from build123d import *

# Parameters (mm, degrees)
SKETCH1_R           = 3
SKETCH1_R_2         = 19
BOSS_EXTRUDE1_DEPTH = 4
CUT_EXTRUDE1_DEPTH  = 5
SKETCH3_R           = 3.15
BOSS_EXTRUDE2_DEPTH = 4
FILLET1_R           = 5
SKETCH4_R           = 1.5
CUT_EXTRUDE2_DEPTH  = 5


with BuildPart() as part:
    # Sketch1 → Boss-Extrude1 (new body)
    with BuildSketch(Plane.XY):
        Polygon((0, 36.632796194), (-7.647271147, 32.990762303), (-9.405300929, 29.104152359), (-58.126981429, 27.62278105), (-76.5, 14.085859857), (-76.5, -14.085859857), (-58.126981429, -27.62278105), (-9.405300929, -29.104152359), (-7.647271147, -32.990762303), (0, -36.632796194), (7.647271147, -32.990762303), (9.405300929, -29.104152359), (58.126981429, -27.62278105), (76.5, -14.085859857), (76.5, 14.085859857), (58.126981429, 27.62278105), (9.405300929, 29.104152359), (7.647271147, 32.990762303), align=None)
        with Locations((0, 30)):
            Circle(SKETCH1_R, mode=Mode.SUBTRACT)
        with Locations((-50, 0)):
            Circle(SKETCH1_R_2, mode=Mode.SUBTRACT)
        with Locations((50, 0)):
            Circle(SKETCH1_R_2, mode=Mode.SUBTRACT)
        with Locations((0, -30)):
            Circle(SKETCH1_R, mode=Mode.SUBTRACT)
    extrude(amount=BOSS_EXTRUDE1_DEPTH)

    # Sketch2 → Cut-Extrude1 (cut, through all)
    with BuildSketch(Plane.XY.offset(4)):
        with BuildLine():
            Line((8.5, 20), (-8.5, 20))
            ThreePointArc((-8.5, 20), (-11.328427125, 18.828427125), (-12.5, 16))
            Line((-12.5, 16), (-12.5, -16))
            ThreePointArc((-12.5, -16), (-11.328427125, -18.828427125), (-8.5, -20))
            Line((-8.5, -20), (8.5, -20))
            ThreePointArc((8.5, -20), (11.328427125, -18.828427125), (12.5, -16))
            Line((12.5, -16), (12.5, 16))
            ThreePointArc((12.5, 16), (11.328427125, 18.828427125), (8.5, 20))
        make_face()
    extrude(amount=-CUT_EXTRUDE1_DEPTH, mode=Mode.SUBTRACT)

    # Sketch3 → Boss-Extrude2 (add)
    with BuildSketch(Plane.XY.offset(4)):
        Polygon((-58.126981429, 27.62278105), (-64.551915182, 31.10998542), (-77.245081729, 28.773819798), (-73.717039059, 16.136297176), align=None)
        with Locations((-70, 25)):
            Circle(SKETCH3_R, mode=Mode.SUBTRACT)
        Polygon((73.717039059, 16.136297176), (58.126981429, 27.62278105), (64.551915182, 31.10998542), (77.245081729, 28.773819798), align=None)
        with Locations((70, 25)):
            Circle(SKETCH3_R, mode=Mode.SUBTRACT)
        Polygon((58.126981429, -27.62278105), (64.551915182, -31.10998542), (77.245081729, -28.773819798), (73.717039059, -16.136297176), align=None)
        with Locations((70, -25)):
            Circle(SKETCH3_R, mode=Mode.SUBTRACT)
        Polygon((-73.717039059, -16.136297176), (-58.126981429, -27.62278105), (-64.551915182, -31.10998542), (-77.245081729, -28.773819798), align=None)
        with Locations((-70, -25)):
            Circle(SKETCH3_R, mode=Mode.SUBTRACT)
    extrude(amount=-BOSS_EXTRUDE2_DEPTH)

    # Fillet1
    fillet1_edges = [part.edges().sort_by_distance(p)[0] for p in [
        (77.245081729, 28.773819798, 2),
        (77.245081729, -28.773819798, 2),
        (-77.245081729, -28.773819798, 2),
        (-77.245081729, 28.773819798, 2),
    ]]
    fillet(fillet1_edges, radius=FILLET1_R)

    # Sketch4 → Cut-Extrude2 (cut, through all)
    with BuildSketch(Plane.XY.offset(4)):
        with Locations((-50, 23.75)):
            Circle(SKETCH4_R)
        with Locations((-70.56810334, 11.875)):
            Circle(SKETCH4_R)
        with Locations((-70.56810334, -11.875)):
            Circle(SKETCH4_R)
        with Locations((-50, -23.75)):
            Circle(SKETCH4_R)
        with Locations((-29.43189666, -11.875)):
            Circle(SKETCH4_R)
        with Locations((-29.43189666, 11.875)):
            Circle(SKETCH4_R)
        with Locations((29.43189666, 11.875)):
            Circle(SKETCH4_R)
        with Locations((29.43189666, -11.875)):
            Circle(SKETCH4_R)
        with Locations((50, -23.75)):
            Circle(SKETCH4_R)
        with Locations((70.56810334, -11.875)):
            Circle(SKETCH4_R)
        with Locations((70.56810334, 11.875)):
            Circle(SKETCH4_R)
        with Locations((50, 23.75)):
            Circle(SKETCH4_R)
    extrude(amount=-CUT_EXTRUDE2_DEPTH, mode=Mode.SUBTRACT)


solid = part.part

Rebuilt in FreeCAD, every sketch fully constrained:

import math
import FreeCAD as App
import Part
import Sketcher


def edges_at(feature, points):
    """Names of the edges that pass closest to the given points."""
    edges = feature.Shape.Edges
    near = lambda p: min(range(len(edges)), key=lambda i: edges[i].distToShape(Part.Vertex(*p))[0])
    return sorted({f"Edge{near(p) + 1}" for p in points})

doc = App.newDocument("Part")
body = doc.addObject("PartDesign::Body", "Body")

# Sketch on XY plane
sketch1 = body.newObject("Sketcher::SketchObject", "Sketch")
sketch1.AttachmentSupport = (doc.getObject("XY_Plane"), [""])
sketch1.MapMode = "FlatFace"
sketch1.addGeometry([
    Part.LineSegment(App.Vector(0, 36.6, 0), App.Vector(-7.6, 33, 0)),  # 0
    Part.LineSegment(App.Vector(-7.6, 33, 0), App.Vector(-9.4, 29.1, 0)),  # 1
    Part.LineSegment(App.Vector(-9.4, 29.1, 0), App.Vector(-58.1, 27.6, 0)),  # 2
    Part.LineSegment(App.Vector(-58.1, 27.6, 0), App.Vector(-76.5, 14.1, 0)),  # 3
    Part.LineSegment(App.Vector(-76.5, 14.1, 0), App.Vector(-76.5, -14.1, 0)),  # 4
    Part.LineSegment(App.Vector(-76.5, -14.1, 0), App.Vector(-58.1, -27.6, 0)),  # 5
    Part.LineSegment(App.Vector(-58.1, -27.6, 0), App.Vector(-9.4, -29.1, 0)),  # 6
    Part.LineSegment(App.Vector(-9.4, -29.1, 0), App.Vector(-7.6, -33, 0)),  # 7
    Part.LineSegment(App.Vector(-7.6, -33, 0), App.Vector(0, -36.6, 0)),  # 8
    Part.LineSegment(App.Vector(0, -36.6, 0), App.Vector(7.6, -33, 0)),  # 9
    Part.LineSegment(App.Vector(7.6, -33, 0), App.Vector(9.4, -29.1, 0)),  # 10
    Part.LineSegment(App.Vector(9.4, -29.1, 0), App.Vector(58.1, -27.6, 0)),  # 11
    Part.LineSegment(App.Vector(58.1, -27.6, 0), App.Vector(76.5, -14.1, 0)),  # 12
    Part.LineSegment(App.Vector(76.5, -14.1, 0), App.Vector(76.5, 14.1, 0)),  # 13
    Part.LineSegment(App.Vector(76.5, 14.1, 0), App.Vector(58.1, 27.6, 0)),  # 14
    Part.LineSegment(App.Vector(58.1, 27.6, 0), App.Vector(9.4, 29.1, 0)),  # 15
    Part.LineSegment(App.Vector(9.4, 29.1, 0), App.Vector(7.6, 33, 0)),  # 16
    Part.LineSegment(App.Vector(7.6, 33, 0), App.Vector(0, 36.6, 0)),  # 17
    Part.Circle(App.Vector(0, -30, 0), App.Vector(0, 0, 1), 3),  # 18
    Part.Circle(App.Vector(-50, 0, 0), App.Vector(0, 0, 1), 19),  # 19
    Part.Circle(App.Vector(50, 0, 0), App.Vector(0, 0, 1), 19),  # 20
    Part.Circle(App.Vector(0, 30, 0), App.Vector(0, 0, 1), 3),  # 21
], False)
sketch1.addConstraint([
    Sketcher.Constraint("Coincident", 0, 2, 1, 1),
    Sketcher.Constraint("Coincident", 1, 2, 2, 1),
    Sketcher.Constraint("Coincident", 2, 2, 3, 1),
    Sketcher.Constraint("Coincident", 3, 2, 4, 1),
    Sketcher.Constraint("Coincident", 4, 2, 5, 1),
    Sketcher.Constraint("Coincident", 5, 2, 6, 1),
    Sketcher.Constraint("Coincident", 6, 2, 7, 1),
    Sketcher.Constraint("Coincident", 7, 2, 8, 1),
    Sketcher.Constraint("Coincident", 8, 2, 9, 1),
    Sketcher.Constraint("Coincident", 9, 2, 10, 1),
    Sketcher.Constraint("Coincident", 10, 2, 11, 1),
    Sketcher.Constraint("Coincident", 11, 2, 12, 1),
    Sketcher.Constraint("Coincident", 12, 2, 13, 1),
    Sketcher.Constraint("Coincident", 13, 2, 14, 1),
    Sketcher.Constraint("Coincident", 14, 2, 15, 1),
    Sketcher.Constraint("Coincident", 15, 2, 16, 1),
    Sketcher.Constraint("Coincident", 16, 2, 17, 1),
    Sketcher.Constraint("Coincident", 17, 2, 0, 1),
    Sketcher.Constraint("Vertical", 4),
    Sketcher.Constraint("Vertical", 13),
    Sketcher.Constraint("Equal", 19, 20),
    Sketcher.Constraint("Equal", 18, 21),
    Sketcher.Constraint("Symmetric", 19, 3, 20, 3, -1, 1),
    Sketcher.Constraint("Symmetric", 18, 3, 21, 3, -1, 1),
    Sketcher.Constraint("Symmetric", 0, 2, 9, 2, -1, 1),
    Sketcher.Constraint("Symmetric", 1, 2, 10, 2, -1, 1),
    Sketcher.Constraint("Symmetric", 2, 2, 11, 2, -1, 1),
    Sketcher.Constraint("Symmetric", 3, 2, 12, 2, -1, 1),
    Sketcher.Constraint("Symmetric", 5, 2, 14, 2, -1, 1),
    Sketcher.Constraint("Symmetric", 6, 2, 15, 2, -1, 1),
    Sketcher.Constraint("Symmetric", 7, 2, 16, 2, -1, 1),
    Sketcher.Constraint("Symmetric", 8, 2, 17, 2, -1, 1),
    Sketcher.Constraint("Symmetric", 7, 2, 9, 2, -2),
    Sketcher.Constraint("Symmetric", 6, 2, 10, 2, -2),
    Sketcher.Constraint("Symmetric", 5, 2, 11, 2, -2),
    Sketcher.Constraint("PointOnObject", 18, 3, -2),
    Sketcher.Constraint("PointOnObject", 19, 3, -1),
    Sketcher.Constraint("PointOnObject", 8, 2, -2),
    Sketcher.Constraint("Parallel", 5, 14),
    Sketcher.Constraint("Horizontal", 4, 2, 12, 2),
    Sketcher.Constraint("Diameter", 18, 6.0),
    Sketcher.Constraint("Diameter", 19, 38.0),
    Sketcher.Constraint("DistanceY", 18, 3, -1, 1, 30.0),
    Sketcher.Constraint("DistanceX", 19, 3, -1, 1, 50.0),
    Sketcher.Constraint("DistanceX", 3, 2, -1, 1, 76.5),
    Sketcher.Constraint("DistanceY", 4, 2, 4, 1, 28.17172),
    Sketcher.Constraint("DistanceX", 1, 2, -1, 1, 9.405301),
    Sketcher.Constraint("Distance", 0, 8.470252),
    Sketcher.Constraint("DistanceX", 0, 2, -1, 1, 7.647271),
    Sketcher.Constraint("DistanceX", 2, 2, -1, 1, 58.126981),
    Sketcher.Constraint("DistanceY", -1, 1, 2, 2, 27.622781),
    Sketcher.Constraint("DistanceY", 1, 2, 0, 2, 3.88661),
    Sketcher.Constraint("DistanceY", 2, 2, 1, 2, 1.481371),
])
pad1 = body.newObject("PartDesign::Pad", "Pad")
pad1.Profile = sketch1
pad1.Length = 4

# Sketch on XY plane
sketch2 = body.newObject("Sketcher::SketchObject", "Sketch001")
sketch2.AttachmentSupport = (doc.getObject("XY_Plane"), [""])
sketch2.MapMode = "FlatFace"
sketch2.AttachmentOffset = App.Placement(App.Vector(0, 0, 4), App.Rotation())
sketch2.addGeometry([
    Part.LineSegment(App.Vector(8.5, 20, 0), App.Vector(-8.5, 20, 0)),  # 0
    Part.ArcOfCircle(Part.Circle(App.Vector(-8.5, 16, 0), App.Vector(0, 0, 1), 4), math.radians(90), math.radians(180)),  # 1
    Part.LineSegment(App.Vector(-12.5, 16, 0), App.Vector(-12.5, -16, 0)),  # 2
    Part.ArcOfCircle(Part.Circle(App.Vector(-8.5, -16, 0), App.Vector(0, 0, 1), 4), math.radians(180), math.radians(270)),  # 3
    Part.LineSegment(App.Vector(-8.5, -20, 0), App.Vector(8.5, -20, 0)),  # 4
    Part.ArcOfCircle(Part.Circle(App.Vector(8.5, -16, 0), App.Vector(0, 0, 1), 4), math.radians(-90), math.radians(0)),  # 5
    Part.LineSegment(App.Vector(12.5, -16, 0), App.Vector(12.5, 16, 0)),  # 6
    Part.ArcOfCircle(Part.Circle(App.Vector(8.5, 16, 0), App.Vector(0, 0, 1), 4), math.radians(0), math.radians(90)),  # 7
], False)
sketch2.addConstraint([
    Sketcher.Constraint("Tangent", 0, 2, 1, 1),
    Sketcher.Constraint("Tangent", 1, 2, 2, 1),
    Sketcher.Constraint("Tangent", 2, 2, 3, 1),
    Sketcher.Constraint("Tangent", 3, 2, 4, 1),
    Sketcher.Constraint("Tangent", 4, 2, 5, 1),
    Sketcher.Constraint("Tangent", 5, 2, 6, 1),
    Sketcher.Constraint("Tangent", 6, 2, 7, 1),
    Sketcher.Constraint("Tangent", 7, 2, 0, 1),
    Sketcher.Constraint("Horizontal", 0),
    Sketcher.Constraint("Vertical", 2),
    Sketcher.Constraint("Horizontal", 4),
    Sketcher.Constraint("Vertical", 6),
    Sketcher.Constraint("Equal", 1, 3),
    Sketcher.Constraint("Equal", 3, 5),
    Sketcher.Constraint("Equal", 5, 7),
    Sketcher.Constraint("Symmetric", 1, 3, 5, 3, -1, 1),
    Sketcher.Constraint("Radius", 1, 4.0),
    Sketcher.Constraint("DistanceX", 0, 2, 0, 1, 17.0),
    Sketcher.Constraint("DistanceY", 2, 2, 2, 1, 32.0),
])
pocket1 = body.newObject("PartDesign::Pocket", "Pocket")
pocket1.Profile = sketch2
pocket1.Type = "ThroughAll"

# Sketch on XY plane
sketch3 = body.newObject("Sketcher::SketchObject", "Sketch002")
sketch3.AttachmentSupport = (doc.getObject("XY_Plane"), [""])
sketch3.MapMode = "FlatFace"
sketch3.AttachmentOffset = App.Placement(App.Vector(0, 0, 4), App.Rotation())
sketch3.addGeometry([
    Part.LineSegment(App.Vector(-58.1, 27.6, 0), App.Vector(-64.6, 31.1, 0)),  # 0
    Part.LineSegment(App.Vector(-64.6, 31.1, 0), App.Vector(-77.2, 28.8, 0)),  # 1
    Part.LineSegment(App.Vector(-77.2, 28.8, 0), App.Vector(-73.7, 16.1, 0)),  # 2
    Part.LineSegment(App.Vector(-73.7, 16.1, 0), App.Vector(-58.1, 27.6, 0)),  # 3
    Part.Circle(App.Vector(-70, 25, 0), App.Vector(0, 0, 1), 3.1),  # 4
    Part.LineSegment(App.Vector(58.1, 27.6, 0), App.Vector(73.7, 16.1, 0)),  # 5
    Part.LineSegment(App.Vector(73.7, 16.1, 0), App.Vector(77.2, 28.8, 0)),  # 6
    Part.LineSegment(App.Vector(77.2, 28.8, 0), App.Vector(64.6, 31.1, 0)),  # 7
    Part.LineSegment(App.Vector(64.6, 31.1, 0), App.Vector(58.1, 27.6, 0)),  # 8
    Part.Circle(App.Vector(70, 25, 0), App.Vector(0, 0, 1), 3.1),  # 9
    Part.LineSegment(App.Vector(58.1, -27.6, 0), App.Vector(64.6, -31.1, 0)),  # 10
    Part.LineSegment(App.Vector(64.6, -31.1, 0), App.Vector(77.2, -28.8, 0)),  # 11
    Part.LineSegment(App.Vector(77.2, -28.8, 0), App.Vector(73.7, -16.1, 0)),  # 12
    Part.LineSegment(App.Vector(73.7, -16.1, 0), App.Vector(58.1, -27.6, 0)),  # 13
    Part.Circle(App.Vector(70, -25, 0), App.Vector(0, 0, 1), 3.1),  # 14
    Part.LineSegment(App.Vector(-58.1, -27.6, 0), App.Vector(-73.7, -16.1, 0)),  # 15
    Part.LineSegment(App.Vector(-73.7, -16.1, 0), App.Vector(-77.2, -28.8, 0)),  # 16
    Part.LineSegment(App.Vector(-77.2, -28.8, 0), App.Vector(-64.6, -31.1, 0)),  # 17
    Part.LineSegment(App.Vector(-64.6, -31.1, 0), App.Vector(-58.1, -27.6, 0)),  # 18
    Part.Circle(App.Vector(-70, -25, 0), App.Vector(0, 0, 1), 3.1),  # 19
], False)
sketch3.addConstraint([
    Sketcher.Constraint("Coincident", 0, 2, 1, 1),
    Sketcher.Constraint("Coincident", 1, 2, 2, 1),
    Sketcher.Constraint("Coincident", 2, 2, 3, 1),
    Sketcher.Constraint("Coincident", 3, 2, 0, 1),
    Sketcher.Constraint("Coincident", 5, 2, 6, 1),
    Sketcher.Constraint("Coincident", 6, 2, 7, 1),
    Sketcher.Constraint("Coincident", 7, 2, 8, 1),
    Sketcher.Constraint("Coincident", 8, 2, 5, 1),
    Sketcher.Constraint("Coincident", 10, 2, 11, 1),
    Sketcher.Constraint("Coincident", 11, 2, 12, 1),
    Sketcher.Constraint("Coincident", 12, 2, 13, 1),
    Sketcher.Constraint("Coincident", 13, 2, 10, 1),
    Sketcher.Constraint("Coincident", 15, 2, 16, 1),
    Sketcher.Constraint("Coincident", 16, 2, 17, 1),
    Sketcher.Constraint("Coincident", 17, 2, 18, 1),
    Sketcher.Constraint("Coincident", 18, 2, 15, 1),
    Sketcher.Constraint("Equal", 4, 9),
    Sketcher.Constraint("Equal", 9, 14),
    Sketcher.Constraint("Equal", 14, 19),
    Sketcher.Constraint("Symmetric", 4, 3, 14, 3, -1, 1),
    Sketcher.Constraint("Symmetric", 9, 3, 19, 3, -1, 1),
    Sketcher.Constraint("Symmetric", 0, 2, 10, 2, -1, 1),
    Sketcher.Constraint("Symmetric", 1, 2, 11, 2, -1, 1),
    Sketcher.Constraint("Symmetric", 2, 2, 12, 2, -1, 1),
    Sketcher.Constraint("Symmetric", 3, 2, 13, 2, -1, 1),
    Sketcher.Constraint("Symmetric", 5, 2, 15, 2, -1, 1),
    Sketcher.Constraint("Symmetric", 6, 2, 16, 2, -1, 1),
    Sketcher.Constraint("Symmetric", 7, 2, 17, 2, -1, 1),
    Sketcher.Constraint("Symmetric", 8, 2, 18, 2, -1, 1),
    Sketcher.Constraint("Symmetric", 4, 3, 9, 3, -2),
    Sketcher.Constraint("Symmetric", 2, 2, 5, 2, -2),
    Sketcher.Constraint("Symmetric", 1, 2, 6, 2, -2),
    Sketcher.Constraint("Symmetric", 0, 2, 7, 2, -2),
    Sketcher.Constraint("Symmetric", 3, 2, 8, 2, -2),
    Sketcher.Constraint("Diameter", 4, 6.3),
    Sketcher.Constraint("DistanceX", 4, 3, -1, 1, 70.0),
    Sketcher.Constraint("DistanceY", -1, 1, 4, 3, 25.0),
    Sketcher.Constraint("DistanceX", 1, 2, 3, 2, 19.1181),
    Sketcher.Constraint("Distance", 0, 7.310292),
    Sketcher.Constraint("Distance", 1, 12.906361),
    Sketcher.Constraint("Distance", 2, 13.120749),
    Sketcher.Constraint("Distance", 3, 19.364638),
    Sketcher.Constraint("DistanceX", 1, 2, -1, 1, 77.245082),
    Sketcher.Constraint("DistanceY", -1, 1, 1, 2, 28.77382),
    Sketcher.Constraint("DistanceX", 2, 2, -1, 1, 73.717039),
])
pad2 = body.newObject("PartDesign::Pad", "Pad001")
pad2.Profile = sketch3
pad2.Length = 4
pad2.Reversed = True
doc.recompute()

fillet = body.newObject("PartDesign::Fillet", "Fillet")
fillet.Base = (pad2, edges_at(pad2, [
    (77.245, 28.774, 2),
    (77.245, -28.774, 2),
    (-77.245, -28.774, 2),
    (-77.245, 28.774, 2),
]))
fillet.Radius = 5

# Sketch on XY plane
sketch4 = body.newObject("Sketcher::SketchObject", "Sketch003")
sketch4.AttachmentSupport = (doc.getObject("XY_Plane"), [""])
sketch4.MapMode = "FlatFace"
sketch4.AttachmentOffset = App.Placement(App.Vector(0, 0, 4), App.Rotation())
sketch4.addGeometry([
    Part.Circle(App.Vector(-50, 23.8, 0), App.Vector(0, 0, 1), 1.5),  # 0
    Part.Circle(App.Vector(-70.6, 11.9, 0), App.Vector(0, 0, 1), 1.5),  # 1
    Part.Circle(App.Vector(-70.6, -11.9, 0), App.Vector(0, 0, 1), 1.5),  # 2
    Part.Circle(App.Vector(-50, -23.8, 0), App.Vector(0, 0, 1), 1.5),  # 3
    Part.Circle(App.Vector(-29.4, -11.9, 0), App.Vector(0, 0, 1), 1.5),  # 4
    Part.Circle(App.Vector(-29.4, 11.9, 0), App.Vector(0, 0, 1), 1.5),  # 5
    Part.Circle(App.Vector(29.4, 11.9, 0), App.Vector(0, 0, 1), 1.5),  # 6
    Part.Circle(App.Vector(29.4, -11.9, 0), App.Vector(0, 0, 1), 1.5),  # 7
    Part.Circle(App.Vector(50, -23.8, 0), App.Vector(0, 0, 1), 1.5),  # 8
    Part.Circle(App.Vector(70.6, -11.9, 0), App.Vector(0, 0, 1), 1.5),  # 9
    Part.Circle(App.Vector(70.6, 11.9, 0), App.Vector(0, 0, 1), 1.5),  # 10
    Part.Circle(App.Vector(50, 23.8, 0), App.Vector(0, 0, 1), 1.5),  # 11
], False)
sketch4.addConstraint([
    Sketcher.Constraint("Equal", 0, 1),
    Sketcher.Constraint("Equal", 1, 2),
    Sketcher.Constraint("Equal", 2, 3),
    Sketcher.Constraint("Equal", 3, 4),
    Sketcher.Constraint("Equal", 4, 5),
    Sketcher.Constraint("Equal", 5, 6),
    Sketcher.Constraint("Equal", 6, 7),
    Sketcher.Constraint("Equal", 7, 8),
    Sketcher.Constraint("Equal", 8, 9),
    Sketcher.Constraint("Equal", 9, 10),
    Sketcher.Constraint("Equal", 10, 11),
    Sketcher.Constraint("Symmetric", 4, 3, 6, 3, -1, 1),
    Sketcher.Constraint("Symmetric", 5, 3, 7, 3, -1, 1),
    Sketcher.Constraint("Symmetric", 0, 3, 8, 3, -1, 1),
    Sketcher.Constraint("Symmetric", 1, 3, 9, 3, -1, 1),
    Sketcher.Constraint("Symmetric", 2, 3, 10, 3, -1, 1),
    Sketcher.Constraint("Symmetric", 3, 3, 11, 3, -1, 1),
    Sketcher.Constraint("Symmetric", 5, 3, 6, 3, -2),
    Sketcher.Constraint("Symmetric", 3, 3, 8, 3, -2),
    Sketcher.Constraint("Symmetric", 2, 3, 9, 3, -2),
    Sketcher.Constraint("Horizontal", 2, 3, 4, 3),
    Sketcher.Constraint("Diameter", 0, 3.0),
    Sketcher.Constraint("DistanceX", 0, 3, -1, 1, 50.0),
    Sketcher.Constraint("DistanceX", 1, 3, 6, 3, 100.0),
    Sketcher.Constraint("DistanceY", 3, 3, 0, 3, 47.5),
    Sketcher.Constraint("DistanceY", 2, 3, 1, 3, 23.75),
    Sketcher.Constraint("DistanceX", 1, 3, -1, 1, 70.568103),
])
pocket2 = body.newObject("PartDesign::Pocket", "Pocket001")
pocket2.Profile = sketch4
pocket2.Type = "ThroughAll"

doc.recompute()
